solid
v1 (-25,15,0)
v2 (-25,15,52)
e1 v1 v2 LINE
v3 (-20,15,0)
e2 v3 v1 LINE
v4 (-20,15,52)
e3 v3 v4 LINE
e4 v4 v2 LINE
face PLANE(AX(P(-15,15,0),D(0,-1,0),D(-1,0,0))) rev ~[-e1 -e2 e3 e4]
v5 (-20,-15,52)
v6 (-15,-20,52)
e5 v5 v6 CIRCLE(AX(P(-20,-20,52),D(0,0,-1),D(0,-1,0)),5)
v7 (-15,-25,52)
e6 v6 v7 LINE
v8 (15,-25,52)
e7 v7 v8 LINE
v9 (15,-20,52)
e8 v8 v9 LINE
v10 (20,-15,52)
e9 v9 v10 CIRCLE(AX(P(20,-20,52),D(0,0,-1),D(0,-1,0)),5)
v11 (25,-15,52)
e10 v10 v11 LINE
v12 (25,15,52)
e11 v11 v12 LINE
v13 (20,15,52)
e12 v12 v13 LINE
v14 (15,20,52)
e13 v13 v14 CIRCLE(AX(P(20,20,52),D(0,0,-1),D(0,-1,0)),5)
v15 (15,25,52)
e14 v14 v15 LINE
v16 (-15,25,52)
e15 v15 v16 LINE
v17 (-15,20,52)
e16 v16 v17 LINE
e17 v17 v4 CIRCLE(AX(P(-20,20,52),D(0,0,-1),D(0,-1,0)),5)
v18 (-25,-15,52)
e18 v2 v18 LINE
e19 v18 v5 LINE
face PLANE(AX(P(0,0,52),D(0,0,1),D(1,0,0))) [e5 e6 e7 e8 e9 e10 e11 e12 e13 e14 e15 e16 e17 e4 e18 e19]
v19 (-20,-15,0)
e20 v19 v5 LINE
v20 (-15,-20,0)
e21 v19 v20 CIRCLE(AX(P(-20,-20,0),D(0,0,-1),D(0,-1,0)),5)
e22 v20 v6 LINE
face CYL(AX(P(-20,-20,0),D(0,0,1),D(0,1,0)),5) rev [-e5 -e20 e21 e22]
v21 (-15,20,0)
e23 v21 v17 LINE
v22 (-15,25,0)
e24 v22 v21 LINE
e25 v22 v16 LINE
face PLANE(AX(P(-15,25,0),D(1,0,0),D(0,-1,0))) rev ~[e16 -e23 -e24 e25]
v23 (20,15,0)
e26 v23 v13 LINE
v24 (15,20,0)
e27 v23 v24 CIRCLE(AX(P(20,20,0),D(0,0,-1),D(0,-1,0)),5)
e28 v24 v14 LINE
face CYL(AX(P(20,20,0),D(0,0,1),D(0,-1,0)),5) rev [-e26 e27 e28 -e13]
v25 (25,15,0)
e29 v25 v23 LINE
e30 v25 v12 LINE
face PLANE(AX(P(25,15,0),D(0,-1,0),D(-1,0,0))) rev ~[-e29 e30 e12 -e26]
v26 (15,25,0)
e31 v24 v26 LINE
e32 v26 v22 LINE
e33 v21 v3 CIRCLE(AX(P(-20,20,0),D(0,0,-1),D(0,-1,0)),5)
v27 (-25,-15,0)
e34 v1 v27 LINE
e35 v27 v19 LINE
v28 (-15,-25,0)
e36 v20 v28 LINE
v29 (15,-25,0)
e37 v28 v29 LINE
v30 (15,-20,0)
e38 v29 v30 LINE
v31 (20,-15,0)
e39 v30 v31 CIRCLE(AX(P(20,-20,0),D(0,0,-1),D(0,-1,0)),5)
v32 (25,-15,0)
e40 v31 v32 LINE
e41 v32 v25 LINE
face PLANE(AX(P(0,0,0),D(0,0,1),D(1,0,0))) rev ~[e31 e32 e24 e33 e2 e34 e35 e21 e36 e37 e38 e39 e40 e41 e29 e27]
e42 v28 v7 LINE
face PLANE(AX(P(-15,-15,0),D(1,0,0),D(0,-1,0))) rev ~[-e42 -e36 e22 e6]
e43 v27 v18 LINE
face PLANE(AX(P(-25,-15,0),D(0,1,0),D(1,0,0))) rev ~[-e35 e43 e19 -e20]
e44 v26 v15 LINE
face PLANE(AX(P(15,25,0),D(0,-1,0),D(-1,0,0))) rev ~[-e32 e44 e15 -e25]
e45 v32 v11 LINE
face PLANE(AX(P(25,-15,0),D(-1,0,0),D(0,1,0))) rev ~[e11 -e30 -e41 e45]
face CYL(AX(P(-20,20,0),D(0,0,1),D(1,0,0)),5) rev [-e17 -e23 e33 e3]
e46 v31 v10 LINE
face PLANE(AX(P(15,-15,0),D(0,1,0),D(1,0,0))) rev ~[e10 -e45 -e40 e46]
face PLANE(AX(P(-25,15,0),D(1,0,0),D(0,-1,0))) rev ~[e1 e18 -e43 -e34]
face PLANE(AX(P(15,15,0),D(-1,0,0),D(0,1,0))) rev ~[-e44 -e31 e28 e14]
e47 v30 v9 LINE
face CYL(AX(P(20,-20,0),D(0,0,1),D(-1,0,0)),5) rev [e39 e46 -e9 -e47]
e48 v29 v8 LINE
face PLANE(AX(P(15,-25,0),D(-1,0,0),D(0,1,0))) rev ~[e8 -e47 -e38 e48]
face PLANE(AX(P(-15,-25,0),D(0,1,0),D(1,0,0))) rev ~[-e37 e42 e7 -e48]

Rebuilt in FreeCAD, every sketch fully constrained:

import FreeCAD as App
import Part
import Sketcher
Q = App.Units.Quantity


def edges_at(feature, points):
    """Names of the edges that pass closest to the given points."""
    edges = feature.Shape.Edges
    near = lambda p: min(range(len(edges)), key=lambda i: edges[i].distToShape(Part.Vertex(*p))[0])
    return sorted({f"Edge{near(p) + 1}" for p in points})


def add_polygon(sketch, points):
    """Adds a closed chain of lines whose ends are joined by coincident constraints."""
    first, n = sketch.GeometryCount, len(points)
    for a, b in zip(points, points[1:] + points[:1]):
        sketch.addGeometry(Part.LineSegment(App.Vector(*a, 0), App.Vector(*b, 0)), False)
    for i in range(n):
        sketch.addConstraint(Sketcher.Constraint("Coincident", first + i, 2, first + (i + 1) % n, 1))

doc = App.newDocument("Part")
body = doc.addObject("PartDesign::Body", "Body")

# Sketch on XY plane
sketch1 = body.newObject("Sketcher::SketchObject", "Sketch")
sketch1.AttachmentSupport = (doc.getObject("XY_Plane"), [""])
sketch1.MapMode = "FlatFace"
add_polygon(sketch1, [(15, 25), (-15, 25), (-15, 15), (-25, 15), (-25, -15), (-15, -15), (-15, -25), (15, -25), (15, -15), (25, -15), (25, 15), (15, 15)])  # lines 0-11
sketch1.addConstraint(Sketcher.Constraint("Horizontal", 0))
sketch1.addConstraint(Sketcher.Constraint("Vertical", 1))
sketch1.addConstraint(Sketcher.Constraint("Horizontal", 2))
sketch1.addConstraint(Sketcher.Constraint("Vertical", 3))
sketch1.addConstraint(Sketcher.Constraint("Horizontal", 4))
sketch1.addConstraint(Sketcher.Constraint("Vertical", 5))
sketch1.addConstraint(Sketcher.Constraint("Horizontal", 6))
sketch1.addConstraint(Sketcher.Constraint("Vertical", 7))
sketch1.addConstraint(Sketcher.Constraint("Horizontal", 8))
sketch1.addConstraint(Sketcher.Constraint("Vertical", 9))
sketch1.addConstraint(Sketcher.Constraint("Horizontal", 10))
sketch1.addConstraint(Sketcher.Constraint("Vertical", 11))
sketch1.addConstraint(Sketcher.Constraint("Symmetric", 0, 2, 6, 2, -1, 1))
sketch1.addConstraint(Sketcher.Constraint("Symmetric", 2, 2, 8, 2, -1, 1))
sketch1.addConstraint(Sketcher.Constraint("Symmetric", 4, 2, 10, 2, -1, 1))
sketch1.addConstraint(Sketcher.Constraint("Symmetric", 4, 2, 7, 2, -2))
sketch1.addConstraint(Sketcher.Constraint("Equal", 10, 1))
sketch1.addConstraint(Sketcher.Constraint("Equal", 6, 3))
sketch1.addConstraint(Sketcher.Constraint("DistanceX", 0, 2, 0, 1, Q("30 mm")))
sketch1.addConstraint(Sketcher.Constraint("DistanceX", 2, 2, 2, 1, Q("10 mm")))
pad1 = body.newObject("PartDesign::Pad", "Pad")
pad1.Profile = sketch1
pad1.Length = 52
doc.recompute()

fillet = body.newObject("PartDesign::Fillet", "Fillet")
fillet.Base = (pad1, edges_at(pad1, [
    (-15, -15, 26),
    (15, -15, 26),
    (15, 15, 26),
    (-15, 15, 26),
]))
fillet.Radius = 5

doc.recompute()
